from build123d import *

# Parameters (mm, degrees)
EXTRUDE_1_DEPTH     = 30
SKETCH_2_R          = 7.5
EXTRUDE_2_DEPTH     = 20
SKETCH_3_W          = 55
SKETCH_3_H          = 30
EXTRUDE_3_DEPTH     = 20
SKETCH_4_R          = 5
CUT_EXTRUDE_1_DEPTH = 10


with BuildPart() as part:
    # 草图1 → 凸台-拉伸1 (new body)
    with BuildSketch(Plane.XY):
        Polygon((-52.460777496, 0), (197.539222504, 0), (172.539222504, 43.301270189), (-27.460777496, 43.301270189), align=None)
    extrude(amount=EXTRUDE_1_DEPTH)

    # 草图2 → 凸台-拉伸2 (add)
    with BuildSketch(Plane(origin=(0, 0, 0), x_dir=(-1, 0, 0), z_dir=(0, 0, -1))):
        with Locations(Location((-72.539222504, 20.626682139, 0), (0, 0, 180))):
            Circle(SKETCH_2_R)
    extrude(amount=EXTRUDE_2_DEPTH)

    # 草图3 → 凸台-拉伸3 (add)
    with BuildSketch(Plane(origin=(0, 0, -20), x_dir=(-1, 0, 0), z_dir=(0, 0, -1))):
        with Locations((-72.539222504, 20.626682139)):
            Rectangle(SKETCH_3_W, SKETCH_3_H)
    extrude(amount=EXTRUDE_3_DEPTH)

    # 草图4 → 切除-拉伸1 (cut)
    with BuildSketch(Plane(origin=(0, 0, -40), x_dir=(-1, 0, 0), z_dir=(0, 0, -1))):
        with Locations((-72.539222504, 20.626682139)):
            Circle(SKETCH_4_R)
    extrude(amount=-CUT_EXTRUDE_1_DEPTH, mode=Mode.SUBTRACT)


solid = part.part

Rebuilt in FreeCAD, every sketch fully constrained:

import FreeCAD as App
import Part
import Sketcher
Q = App.Units.Quantity

doc = App.newDocument("Part")
body = doc.addObject("PartDesign::Body", "Body")

# Sketch on XY plane
sketch1 = body.newObject("Sketcher::SketchObject", "Sketch")
sketch1.AttachmentSupport = (doc.getObject("XY_Plane"), [""])
sketch1.MapMode = "FlatFace"
sketch1.addGeometry([
    Part.LineSegment(App.Vector(-52.460777, 0, 0), App.Vector(197.539223, 0, 0)),
    Part.LineSegment(App.Vector(197.539223, 0, 0), App.Vector(172.539223, 43.30127, 0)),
    Part.LineSegment(App.Vector(172.539223, 43.30127, 0), App.Vector(-27.460777, 43.30127, 0)),
    Part.LineSegment(App.Vector(-27.460777, 43.30127, 0), App.Vector(-52.460777, 0, 0)),
], False)
sketch1.addConstraint([
    Sketcher.Constraint("Coincident", 0, 2, 1, 1),
    Sketcher.Constraint("Coincident", 1, 2, 2, 1),
    Sketcher.Constraint("Coincident", 2, 2, 3, 1),
    Sketcher.Constraint("Coincident", 3, 2, 0, 1),
    Sketcher.Constraint("Horizontal", 0),
    Sketcher.Constraint("Horizontal", 2),
    Sketcher.Constraint("PointOnObject", 0, 2, -1),
    Sketcher.Constraint("Equal", 1, 3),
    Sketcher.Constraint("DistanceX", 0, 1, 0, 2, Q("250 mm")),
    Sketcher.Constraint("DistanceX", 2, 2, 2, 1, Q("200 mm")),
    Sketcher.Constraint("Angle", 1, Q("120 deg")),
    Sketcher.Constraint("DistanceX", -1, 1, 0, 2, Q("197.539223 mm")),
])
pad1 = body.newObject("PartDesign::Pad", "Pad")
pad1.Profile = sketch1
pad1.Length = 30

# Sketch on XY plane
sketch2 = body.newObject("Sketcher::SketchObject", "Sketch001")
sketch2.AttachmentSupport = (doc.getObject("XY_Plane"), [""])
sketch2.MapMode = "FlatFace"
sketch2.addGeometry(Part.Circle(App.Vector(72.539223, 20.626682, 0), App.Vector(0, 0, 1), 7.5), False)
sketch2.addConstraint([
    Sketcher.Constraint("Diameter", 0, Q("15 mm")),
    Sketcher.Constraint("DistanceX", -1, 1, 0, 3, Q("72.539223 mm")),
    Sketcher.Constraint("DistanceY", -1, 1, 0, 3, Q("20.626682 mm")),
])
pad2 = body.newObject("PartDesign::Pad", "Pad001")
pad2.Profile = sketch2
pad2.Length = 20
pad2.Reversed = True

# Sketch on XY plane
sketch3 = body.newObject("Sketcher::SketchObject", "Sketch002")
sketch3.AttachmentSupport = (doc.getObject("XY_Plane"), [""])
sketch3.MapMode = "FlatFace"
sketch3.AttachmentOffset = App.Placement(App.Vector(0, 0, -20), App.Rotation())
sketch3.addGeometry([
    Part.LineSegment(App.Vector(100.039223, 35.626682, 0), App.Vector(100.039223, 5.626682, 0)),
    Part.LineSegment(App.Vector(100.039223, 5.626682, 0), App.Vector(45.039223, 5.626682, 0)),
    Part.LineSegment(App.Vector(45.039223, 5.626682, 0), App.Vector(45.039223, 35.626682, 0)),
    Part.LineSegment(App.Vector(45.039223, 35.626682, 0), App.Vector(100.039223, 35.626682, 0)),
], False)
sketch3.addConstraint([
    Sketcher.Constraint("Coincident", 0, 2, 1, 1),
    Sketcher.Constraint("Coincident", 1, 2, 2, 1),
    Sketcher.Constraint("Coincident", 2, 2, 3, 1),
    Sketcher.Constraint("Coincident", 3, 2, 0, 1),
    Sketcher.Constraint("Vertical", 0),
    Sketcher.Constraint("Horizontal", 1),
    Sketcher.Constraint("Vertical", 2),
    Sketcher.Constraint("Horizontal", 3),
    Sketcher.Constraint("DistanceX", 1, 2, 1, 1, Q("55 mm")),
    Sketcher.Constraint("DistanceY", 0, 2, 0, 1, Q("30 mm")),
    Sketcher.Constraint("DistanceX", -1, 1, 0, 2, Q("100.039223 mm")),
    Sketcher.Constraint("DistanceY", -1, 1, 0, 2, Q("5.626682 mm")),
])
pad3 = body.newObject("PartDesign::Pad", "Pad002")
pad3.Profile = sketch3
pad3.Length = 20
pad3.Reversed = True

# Sketch on XY plane
sketch4 = body.newObject("Sketcher::SketchObject", "Sketch003")
sketch4.AttachmentSupport = (doc.getObject("XY_Plane"), [""])
sketch4.MapMode = "FlatFace"
sketch4.AttachmentOffset = App.Placement(App.Vector(0, 0, -40), App.Rotation())
sketch4.addGeometry(Part.Circle(App.Vector(72.539223, 20.626682, 0), App.Vector(0, 0, 1), 5), False)
sketch4.addConstraint([
    Sketcher.Constraint("Diameter", 0, Q("10 mm")),
    Sketcher.Constraint("DistanceX", -1, 1, 0, 3, Q("72.539223 mm")),
    Sketcher.Constraint("DistanceY", -1, 1, 0, 3, Q("20.626682 mm")),
])
pocket1 = body.newObject("PartDesign::Pocket", "Pocket")
pocket1.Profile = sketch4
pocket1.Length = 10
pocket1.Reversed = True

doc.recompute()
